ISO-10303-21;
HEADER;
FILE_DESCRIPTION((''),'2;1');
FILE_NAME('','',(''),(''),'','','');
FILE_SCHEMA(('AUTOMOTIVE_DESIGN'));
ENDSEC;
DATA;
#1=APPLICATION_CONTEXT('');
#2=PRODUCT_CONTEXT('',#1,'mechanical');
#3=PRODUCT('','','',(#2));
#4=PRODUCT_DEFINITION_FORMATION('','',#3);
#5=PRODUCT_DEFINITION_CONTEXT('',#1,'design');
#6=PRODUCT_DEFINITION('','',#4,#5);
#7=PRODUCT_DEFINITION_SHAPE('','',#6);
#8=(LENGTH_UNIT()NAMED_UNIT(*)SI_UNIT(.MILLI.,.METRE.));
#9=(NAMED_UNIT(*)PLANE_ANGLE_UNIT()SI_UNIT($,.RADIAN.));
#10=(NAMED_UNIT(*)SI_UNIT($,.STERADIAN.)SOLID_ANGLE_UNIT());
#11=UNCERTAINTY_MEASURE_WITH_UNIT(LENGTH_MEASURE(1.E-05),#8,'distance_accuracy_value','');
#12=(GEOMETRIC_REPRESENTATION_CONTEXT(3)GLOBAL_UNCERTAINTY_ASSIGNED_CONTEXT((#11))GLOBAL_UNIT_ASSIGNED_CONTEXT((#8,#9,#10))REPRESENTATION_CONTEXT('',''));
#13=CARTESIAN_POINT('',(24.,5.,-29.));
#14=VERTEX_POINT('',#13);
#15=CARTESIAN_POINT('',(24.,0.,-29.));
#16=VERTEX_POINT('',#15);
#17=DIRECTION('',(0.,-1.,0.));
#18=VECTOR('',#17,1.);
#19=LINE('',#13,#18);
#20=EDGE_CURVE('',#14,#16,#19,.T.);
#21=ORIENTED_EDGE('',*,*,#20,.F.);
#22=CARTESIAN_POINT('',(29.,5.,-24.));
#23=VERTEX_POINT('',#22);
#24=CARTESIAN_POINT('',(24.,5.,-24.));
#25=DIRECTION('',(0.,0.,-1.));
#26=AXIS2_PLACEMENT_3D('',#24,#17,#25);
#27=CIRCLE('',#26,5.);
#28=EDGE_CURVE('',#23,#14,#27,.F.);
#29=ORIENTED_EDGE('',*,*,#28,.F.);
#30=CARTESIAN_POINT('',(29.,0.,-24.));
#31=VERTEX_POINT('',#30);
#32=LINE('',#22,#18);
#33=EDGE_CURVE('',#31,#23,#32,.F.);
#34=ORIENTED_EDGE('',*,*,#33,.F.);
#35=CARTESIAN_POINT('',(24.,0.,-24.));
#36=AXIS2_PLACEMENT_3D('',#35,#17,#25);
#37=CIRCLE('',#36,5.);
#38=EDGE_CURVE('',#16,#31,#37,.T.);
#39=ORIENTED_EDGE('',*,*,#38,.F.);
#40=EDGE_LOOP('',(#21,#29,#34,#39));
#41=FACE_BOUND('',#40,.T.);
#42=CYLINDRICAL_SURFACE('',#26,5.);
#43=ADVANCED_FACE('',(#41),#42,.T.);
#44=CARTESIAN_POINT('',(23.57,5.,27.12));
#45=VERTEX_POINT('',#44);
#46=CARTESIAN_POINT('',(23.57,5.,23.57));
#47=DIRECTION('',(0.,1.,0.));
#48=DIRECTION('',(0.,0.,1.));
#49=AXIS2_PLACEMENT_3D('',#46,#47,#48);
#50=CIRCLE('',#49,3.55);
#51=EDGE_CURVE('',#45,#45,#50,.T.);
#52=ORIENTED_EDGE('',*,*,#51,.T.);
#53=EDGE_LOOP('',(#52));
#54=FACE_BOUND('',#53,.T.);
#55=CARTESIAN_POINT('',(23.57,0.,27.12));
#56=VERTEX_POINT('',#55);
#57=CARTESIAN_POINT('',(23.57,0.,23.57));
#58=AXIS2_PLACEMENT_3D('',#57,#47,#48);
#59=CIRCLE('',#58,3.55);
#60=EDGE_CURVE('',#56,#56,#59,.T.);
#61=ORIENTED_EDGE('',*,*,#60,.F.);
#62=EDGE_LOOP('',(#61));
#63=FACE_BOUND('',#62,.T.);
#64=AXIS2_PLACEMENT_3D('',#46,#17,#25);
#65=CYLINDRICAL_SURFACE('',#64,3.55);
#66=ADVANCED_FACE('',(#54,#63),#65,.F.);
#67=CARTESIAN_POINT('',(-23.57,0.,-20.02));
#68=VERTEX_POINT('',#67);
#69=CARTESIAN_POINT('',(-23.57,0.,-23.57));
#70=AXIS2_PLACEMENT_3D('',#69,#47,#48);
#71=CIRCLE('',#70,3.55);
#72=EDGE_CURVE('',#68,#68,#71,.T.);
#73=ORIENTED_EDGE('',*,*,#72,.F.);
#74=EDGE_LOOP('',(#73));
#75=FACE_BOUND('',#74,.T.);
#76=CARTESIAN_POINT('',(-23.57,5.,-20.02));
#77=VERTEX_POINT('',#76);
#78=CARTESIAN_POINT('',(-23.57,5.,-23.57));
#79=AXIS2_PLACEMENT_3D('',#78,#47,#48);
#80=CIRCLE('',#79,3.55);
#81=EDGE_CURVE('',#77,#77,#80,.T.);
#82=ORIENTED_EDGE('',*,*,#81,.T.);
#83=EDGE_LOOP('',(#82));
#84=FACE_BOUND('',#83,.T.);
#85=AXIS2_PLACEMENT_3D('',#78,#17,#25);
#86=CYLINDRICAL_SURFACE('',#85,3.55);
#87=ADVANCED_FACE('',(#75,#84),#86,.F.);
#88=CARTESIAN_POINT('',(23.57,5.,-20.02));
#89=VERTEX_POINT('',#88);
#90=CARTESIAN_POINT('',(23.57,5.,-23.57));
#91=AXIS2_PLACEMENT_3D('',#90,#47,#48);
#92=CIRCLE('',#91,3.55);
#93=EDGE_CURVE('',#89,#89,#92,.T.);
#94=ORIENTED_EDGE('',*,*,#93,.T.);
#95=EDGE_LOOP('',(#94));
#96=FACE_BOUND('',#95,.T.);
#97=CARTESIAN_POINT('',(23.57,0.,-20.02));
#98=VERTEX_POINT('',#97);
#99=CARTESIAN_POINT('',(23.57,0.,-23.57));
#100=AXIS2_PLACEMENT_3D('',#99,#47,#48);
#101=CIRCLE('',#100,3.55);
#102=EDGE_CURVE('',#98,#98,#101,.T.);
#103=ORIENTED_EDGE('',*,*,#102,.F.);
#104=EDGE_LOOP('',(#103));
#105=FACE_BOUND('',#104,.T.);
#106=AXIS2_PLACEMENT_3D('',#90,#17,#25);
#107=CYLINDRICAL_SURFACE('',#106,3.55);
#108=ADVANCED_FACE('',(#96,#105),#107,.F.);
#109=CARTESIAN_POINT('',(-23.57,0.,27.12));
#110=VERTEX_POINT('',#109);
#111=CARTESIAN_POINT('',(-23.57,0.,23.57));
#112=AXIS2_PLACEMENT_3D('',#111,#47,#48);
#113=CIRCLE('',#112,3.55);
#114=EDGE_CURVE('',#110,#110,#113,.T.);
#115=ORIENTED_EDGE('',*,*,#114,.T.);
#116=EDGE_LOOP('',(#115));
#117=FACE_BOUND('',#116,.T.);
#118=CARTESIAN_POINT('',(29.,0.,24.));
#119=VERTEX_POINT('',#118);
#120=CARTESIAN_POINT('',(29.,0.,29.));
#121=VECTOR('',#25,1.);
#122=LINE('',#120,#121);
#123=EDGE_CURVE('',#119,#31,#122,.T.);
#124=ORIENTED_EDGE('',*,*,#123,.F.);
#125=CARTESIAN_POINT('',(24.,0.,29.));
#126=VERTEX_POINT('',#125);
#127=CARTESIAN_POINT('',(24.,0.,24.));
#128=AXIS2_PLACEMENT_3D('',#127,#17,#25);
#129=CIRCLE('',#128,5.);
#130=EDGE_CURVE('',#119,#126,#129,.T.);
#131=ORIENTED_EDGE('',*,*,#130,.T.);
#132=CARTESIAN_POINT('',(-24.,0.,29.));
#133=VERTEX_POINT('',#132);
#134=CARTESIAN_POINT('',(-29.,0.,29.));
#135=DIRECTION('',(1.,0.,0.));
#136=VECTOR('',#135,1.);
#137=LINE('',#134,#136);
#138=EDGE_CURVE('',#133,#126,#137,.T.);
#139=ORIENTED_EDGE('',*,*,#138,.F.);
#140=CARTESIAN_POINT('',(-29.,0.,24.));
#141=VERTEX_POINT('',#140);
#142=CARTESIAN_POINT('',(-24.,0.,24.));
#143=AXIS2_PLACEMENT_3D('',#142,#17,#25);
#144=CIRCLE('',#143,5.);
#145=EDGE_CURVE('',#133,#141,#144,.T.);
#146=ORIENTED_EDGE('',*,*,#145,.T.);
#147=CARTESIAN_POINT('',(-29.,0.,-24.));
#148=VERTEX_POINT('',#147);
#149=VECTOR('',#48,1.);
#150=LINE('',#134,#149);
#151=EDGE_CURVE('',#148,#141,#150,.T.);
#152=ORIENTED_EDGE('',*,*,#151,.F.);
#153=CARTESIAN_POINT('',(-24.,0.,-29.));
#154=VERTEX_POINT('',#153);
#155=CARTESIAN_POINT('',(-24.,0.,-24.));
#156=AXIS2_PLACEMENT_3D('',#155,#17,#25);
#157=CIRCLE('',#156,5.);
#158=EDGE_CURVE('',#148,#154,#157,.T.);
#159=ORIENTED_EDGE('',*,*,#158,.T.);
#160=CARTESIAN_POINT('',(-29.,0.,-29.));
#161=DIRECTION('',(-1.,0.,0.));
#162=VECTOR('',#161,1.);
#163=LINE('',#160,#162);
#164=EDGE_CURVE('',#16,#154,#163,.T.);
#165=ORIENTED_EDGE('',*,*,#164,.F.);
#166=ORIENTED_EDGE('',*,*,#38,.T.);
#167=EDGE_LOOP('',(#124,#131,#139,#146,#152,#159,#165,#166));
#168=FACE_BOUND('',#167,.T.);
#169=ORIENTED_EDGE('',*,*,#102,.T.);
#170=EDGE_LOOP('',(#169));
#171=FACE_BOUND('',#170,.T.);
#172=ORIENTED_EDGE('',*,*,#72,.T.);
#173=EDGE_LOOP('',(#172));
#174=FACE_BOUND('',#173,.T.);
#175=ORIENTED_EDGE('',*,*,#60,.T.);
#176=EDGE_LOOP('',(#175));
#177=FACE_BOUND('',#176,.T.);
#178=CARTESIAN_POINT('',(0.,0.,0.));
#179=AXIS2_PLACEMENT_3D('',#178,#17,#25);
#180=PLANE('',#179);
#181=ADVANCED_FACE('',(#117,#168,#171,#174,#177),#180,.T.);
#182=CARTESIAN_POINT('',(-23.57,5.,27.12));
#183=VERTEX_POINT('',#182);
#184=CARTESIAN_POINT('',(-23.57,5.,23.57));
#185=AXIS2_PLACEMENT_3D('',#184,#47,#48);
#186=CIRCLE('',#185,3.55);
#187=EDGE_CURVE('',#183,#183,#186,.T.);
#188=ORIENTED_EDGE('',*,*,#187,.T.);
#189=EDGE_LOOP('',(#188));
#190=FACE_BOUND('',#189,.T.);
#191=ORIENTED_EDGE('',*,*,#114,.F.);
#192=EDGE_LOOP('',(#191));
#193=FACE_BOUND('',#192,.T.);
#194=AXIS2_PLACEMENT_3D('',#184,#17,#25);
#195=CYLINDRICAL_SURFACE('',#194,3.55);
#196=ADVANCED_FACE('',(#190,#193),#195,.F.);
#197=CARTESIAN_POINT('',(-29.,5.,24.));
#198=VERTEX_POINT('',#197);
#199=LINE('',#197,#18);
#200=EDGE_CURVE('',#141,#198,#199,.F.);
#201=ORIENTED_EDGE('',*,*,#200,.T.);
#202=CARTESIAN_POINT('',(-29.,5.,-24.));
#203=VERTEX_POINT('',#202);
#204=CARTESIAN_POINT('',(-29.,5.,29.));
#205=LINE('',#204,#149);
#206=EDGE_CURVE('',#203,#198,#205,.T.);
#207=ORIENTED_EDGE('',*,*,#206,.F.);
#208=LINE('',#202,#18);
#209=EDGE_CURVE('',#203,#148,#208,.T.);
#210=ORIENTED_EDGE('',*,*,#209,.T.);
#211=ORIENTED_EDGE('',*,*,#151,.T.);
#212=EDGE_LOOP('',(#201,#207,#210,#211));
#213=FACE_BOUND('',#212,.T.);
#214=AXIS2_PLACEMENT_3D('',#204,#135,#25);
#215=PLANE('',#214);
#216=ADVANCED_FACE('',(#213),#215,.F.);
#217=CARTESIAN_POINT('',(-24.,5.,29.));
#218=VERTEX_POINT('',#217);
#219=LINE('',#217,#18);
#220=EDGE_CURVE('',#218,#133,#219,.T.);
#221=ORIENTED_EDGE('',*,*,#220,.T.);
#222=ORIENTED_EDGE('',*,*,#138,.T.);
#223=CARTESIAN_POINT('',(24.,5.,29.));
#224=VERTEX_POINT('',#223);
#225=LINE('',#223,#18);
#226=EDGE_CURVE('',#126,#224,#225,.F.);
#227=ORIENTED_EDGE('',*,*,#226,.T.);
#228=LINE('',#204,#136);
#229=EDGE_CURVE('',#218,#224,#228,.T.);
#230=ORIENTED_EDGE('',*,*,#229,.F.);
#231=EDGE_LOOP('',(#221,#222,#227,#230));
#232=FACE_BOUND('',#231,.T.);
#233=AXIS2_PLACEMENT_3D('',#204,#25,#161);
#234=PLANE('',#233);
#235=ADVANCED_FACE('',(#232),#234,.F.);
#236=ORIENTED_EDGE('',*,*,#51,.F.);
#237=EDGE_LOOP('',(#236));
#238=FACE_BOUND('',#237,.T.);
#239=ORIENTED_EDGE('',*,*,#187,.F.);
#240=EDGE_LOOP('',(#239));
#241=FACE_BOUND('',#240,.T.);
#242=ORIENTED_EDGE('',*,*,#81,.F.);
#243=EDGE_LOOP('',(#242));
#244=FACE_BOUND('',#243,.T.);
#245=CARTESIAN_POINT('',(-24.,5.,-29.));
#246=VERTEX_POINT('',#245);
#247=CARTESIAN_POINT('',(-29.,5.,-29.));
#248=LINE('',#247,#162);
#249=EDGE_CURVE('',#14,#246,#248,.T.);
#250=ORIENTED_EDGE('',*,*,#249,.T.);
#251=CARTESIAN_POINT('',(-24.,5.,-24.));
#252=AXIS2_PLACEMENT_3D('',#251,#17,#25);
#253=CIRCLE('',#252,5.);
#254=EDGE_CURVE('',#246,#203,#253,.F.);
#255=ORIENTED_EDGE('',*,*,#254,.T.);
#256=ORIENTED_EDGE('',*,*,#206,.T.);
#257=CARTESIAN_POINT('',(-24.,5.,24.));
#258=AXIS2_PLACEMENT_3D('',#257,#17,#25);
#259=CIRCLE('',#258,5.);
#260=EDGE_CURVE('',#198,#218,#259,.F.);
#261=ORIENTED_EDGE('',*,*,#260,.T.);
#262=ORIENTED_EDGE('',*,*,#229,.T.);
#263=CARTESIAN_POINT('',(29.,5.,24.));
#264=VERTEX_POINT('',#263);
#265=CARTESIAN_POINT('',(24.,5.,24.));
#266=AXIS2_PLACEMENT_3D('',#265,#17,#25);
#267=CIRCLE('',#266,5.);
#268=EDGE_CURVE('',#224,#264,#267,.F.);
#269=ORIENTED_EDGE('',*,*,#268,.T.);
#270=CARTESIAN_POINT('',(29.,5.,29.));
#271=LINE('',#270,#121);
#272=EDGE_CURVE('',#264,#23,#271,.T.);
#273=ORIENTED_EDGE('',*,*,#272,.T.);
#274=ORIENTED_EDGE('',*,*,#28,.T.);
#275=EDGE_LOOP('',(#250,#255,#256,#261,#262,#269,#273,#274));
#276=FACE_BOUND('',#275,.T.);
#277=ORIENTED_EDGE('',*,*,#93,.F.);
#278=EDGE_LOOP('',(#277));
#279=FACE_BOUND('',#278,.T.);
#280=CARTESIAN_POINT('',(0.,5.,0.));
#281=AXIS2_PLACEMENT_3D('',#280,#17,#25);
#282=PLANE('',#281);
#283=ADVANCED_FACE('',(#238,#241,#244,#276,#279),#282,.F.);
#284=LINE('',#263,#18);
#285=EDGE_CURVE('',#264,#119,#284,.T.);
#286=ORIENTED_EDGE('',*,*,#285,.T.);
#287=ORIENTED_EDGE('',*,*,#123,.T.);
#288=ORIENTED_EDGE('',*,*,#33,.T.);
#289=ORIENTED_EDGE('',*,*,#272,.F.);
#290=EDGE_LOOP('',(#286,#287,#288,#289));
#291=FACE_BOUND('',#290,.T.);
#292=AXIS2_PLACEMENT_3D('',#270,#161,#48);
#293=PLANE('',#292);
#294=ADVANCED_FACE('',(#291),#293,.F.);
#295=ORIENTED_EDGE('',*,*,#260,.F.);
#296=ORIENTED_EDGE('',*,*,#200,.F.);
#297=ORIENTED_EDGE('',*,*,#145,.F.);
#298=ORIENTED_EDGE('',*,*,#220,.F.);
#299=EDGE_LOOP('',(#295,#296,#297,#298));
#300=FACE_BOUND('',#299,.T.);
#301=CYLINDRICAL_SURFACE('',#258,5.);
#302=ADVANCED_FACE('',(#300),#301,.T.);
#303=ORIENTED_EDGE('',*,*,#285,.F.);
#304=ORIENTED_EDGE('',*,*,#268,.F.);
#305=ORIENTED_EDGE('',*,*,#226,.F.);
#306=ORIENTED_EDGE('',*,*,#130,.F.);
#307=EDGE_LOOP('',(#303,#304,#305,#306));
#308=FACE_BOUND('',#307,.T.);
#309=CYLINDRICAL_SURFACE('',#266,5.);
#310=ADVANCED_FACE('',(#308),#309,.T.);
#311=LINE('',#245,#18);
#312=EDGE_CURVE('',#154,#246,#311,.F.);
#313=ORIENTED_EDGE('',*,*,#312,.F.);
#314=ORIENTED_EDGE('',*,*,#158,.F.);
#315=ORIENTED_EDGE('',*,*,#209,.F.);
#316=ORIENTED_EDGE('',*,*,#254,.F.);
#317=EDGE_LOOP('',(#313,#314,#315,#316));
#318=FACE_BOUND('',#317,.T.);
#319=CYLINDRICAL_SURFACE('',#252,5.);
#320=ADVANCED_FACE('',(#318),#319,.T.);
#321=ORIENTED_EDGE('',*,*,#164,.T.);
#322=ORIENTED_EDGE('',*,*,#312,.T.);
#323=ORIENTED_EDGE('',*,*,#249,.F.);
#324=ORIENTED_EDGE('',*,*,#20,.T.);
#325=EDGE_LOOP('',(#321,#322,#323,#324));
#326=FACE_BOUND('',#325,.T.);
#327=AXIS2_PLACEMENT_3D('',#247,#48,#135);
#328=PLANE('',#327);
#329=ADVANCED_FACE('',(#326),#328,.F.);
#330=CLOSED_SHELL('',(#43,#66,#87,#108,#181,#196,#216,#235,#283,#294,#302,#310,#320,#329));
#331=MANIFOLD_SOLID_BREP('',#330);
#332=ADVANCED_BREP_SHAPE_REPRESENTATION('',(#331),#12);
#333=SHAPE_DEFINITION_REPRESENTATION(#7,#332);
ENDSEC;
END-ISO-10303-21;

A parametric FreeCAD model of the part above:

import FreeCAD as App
import Part
import Sketcher

V = App.Vector
Q = App.Units.Quantity


def edges_at(feature, points):
    """Names of the edges that pass closest to the given points."""
    edges = feature.Shape.Edges
    near = lambda p: min(range(len(edges)), key=lambda i: edges[i].distToShape(Part.Vertex(*p))[0])
    return sorted({f"Edge{near(p) + 1}" for p in points})

doc = App.newDocument("Part")
params = doc.addObject("Spreadsheet::Sheet", "Params")
for row, (alias, value) in enumerate([
    ("sketch1_diameter", "7.1 mm"),
    ("sketch1_width", "58 mm"),
    ("pad1_length", "5 mm"),
    ("fillet_radius", "5 mm"),
], start=1):
    params.set(f"A{row}", alias)
    params.set(f"B{row}", "=" + value)
    params.setAlias(f"B{row}", alias)

body = doc.addObject("PartDesign::Body", "Body")

sketch1 = doc.addObject("Sketcher::SketchObject", "Sketch")
body.addObject(sketch1)
sketch1.AttachmentSupport = (doc.XZ_Plane, [""])
sketch1.MapMode = "FlatFace"
sketch1.addGeometry(Part.LineSegment(V(-29, -29, 0), V(-29, 29, 0)), False)
sketch1.addGeometry(Part.LineSegment(V(-29, 29, 0), V(29, 29, 0)), False)
sketch1.addGeometry(Part.LineSegment(V(29, 29, 0), V(29, -29, 0)), False)
sketch1.addGeometry(Part.LineSegment(V(29, -29, 0), V(-29, -29, 0)), False)
sketch1.addGeometry(Part.Circle(V(-23.6, 23.6, 0), V(0, 0, 1), 3.5), False)
sketch1.addGeometry(Part.Circle(V(23.6, 23.6, 0), V(0, 0, 1), 3.5), False)
sketch1.addGeometry(Part.Circle(V(-23.6, -23.6, 0), V(0, 0, 1), 3.5), False)
sketch1.addGeometry(Part.Circle(V(23.6, -23.6, 0), V(0, 0, 1), 3.5), False)
sketch1.addConstraint(Sketcher.Constraint("Coincident", 0, 2, 1, 1))
sketch1.addConstraint(Sketcher.Constraint("Coincident", 1, 2, 2, 1))
sketch1.addConstraint(Sketcher.Constraint("Coincident", 2, 2, 3, 1))
sketch1.addConstraint(Sketcher.Constraint("Coincident", 3, 2, 0, 1))
sketch1.addConstraint(Sketcher.Constraint("Vertical", 0))
sketch1.addConstraint(Sketcher.Constraint("Horizontal", 1))
sketch1.addConstraint(Sketcher.Constraint("Vertical", 2))
sketch1.addConstraint(Sketcher.Constraint("Horizontal", 3))
sketch1.addConstraint(Sketcher.Constraint("Equal", 4, 5))
sketch1.addConstraint(Sketcher.Constraint("Equal", 5, 6))
sketch1.addConstraint(Sketcher.Constraint("Equal", 6, 7))
sketch1.addConstraint(Sketcher.Constraint("Symmetric", 5, 3, 6, 3, -1, 1))
sketch1.addConstraint(Sketcher.Constraint("Symmetric", 4, 3, 7, 3, -1, 1))
sketch1.addConstraint(Sketcher.Constraint("Symmetric", 0, 2, 2, 2, -1, 1))
sketch1.addConstraint(Sketcher.Constraint("Symmetric", 4, 3, 5, 3, -2))
sketch1.addConstraint(Sketcher.Constraint("Equal", 3, 0))
sketch1.addConstraint(Sketcher.Constraint("Diameter", 4, Q("7.1 mm")))
sketch1.addConstraint(Sketcher.Constraint("DistanceX", 1, 1, 1, 2, Q("58 mm")))
sketch1.addConstraint(Sketcher.Constraint("DistanceX", 4, 3, -1, 1, Q("23.57 mm")))
sketch1.addConstraint(Sketcher.Constraint("DistanceY", -1, 1, 4, 3, Q("23.57 mm")))
sketch1.setExpression("Constraints[16]", "Params.sketch1_diameter")
sketch1.setExpression("Constraints[17]", "Params.sketch1_width")
pad1 = doc.addObject("PartDesign::Pad", "Pad")
body.addObject(pad1)
pad1.Profile = sketch1
pad1.setExpression("Length", "Params.pad1_length")
pad1.Reversed = True
doc.recompute()

fillet = doc.addObject("PartDesign::Fillet", "Fillet")
body.addObject(fillet)
fillet.Base = (pad1, edges_at(pad1, [
    (29, 2.5, 29),
    (-29, 2.5, 29),
    (-29, 2.5, -29),
    (29, 2.5, -29),
]))
fillet.setExpression("Radius", "Params.fillet_radius")

doc.recompute()
